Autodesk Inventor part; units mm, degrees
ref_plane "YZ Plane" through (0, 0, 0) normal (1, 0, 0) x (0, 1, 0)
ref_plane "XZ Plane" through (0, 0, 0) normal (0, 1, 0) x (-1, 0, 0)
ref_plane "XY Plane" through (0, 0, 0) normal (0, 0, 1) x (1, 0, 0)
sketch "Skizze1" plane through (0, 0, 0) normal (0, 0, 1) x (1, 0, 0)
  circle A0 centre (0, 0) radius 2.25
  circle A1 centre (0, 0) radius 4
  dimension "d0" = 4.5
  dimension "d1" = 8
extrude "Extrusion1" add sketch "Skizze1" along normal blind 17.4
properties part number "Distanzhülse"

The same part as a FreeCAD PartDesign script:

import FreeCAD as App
import Part
import Sketcher

V = App.Vector
Q = App.Units.Quantity

doc = App.newDocument("Part")
body = doc.addObject("PartDesign::Body", "Body")

# Sketch on XY plane
sketch1 = body.newObject("Sketcher::SketchObject", "Sketch")
sketch1.AttachmentSupport = (doc.getObject("XY_Plane"), [""])
sketch1.MapMode = "FlatFace"
sketch1.addGeometry([
    Part.Circle(V(0, 0, 0), V(0, 0, 1), 4),
    Part.Circle(V(0, 0, 0), V(0, 0, 1), 2.25),
], False)
sketch1.addConstraint([
    Sketcher.Constraint("Coincident", 0, 3, -1, 1),
    Sketcher.Constraint("Coincident", 1, 3, -1, 1),
    Sketcher.Constraint("Diameter", 0, Q("8 mm")),
    Sketcher.Constraint("Diameter", 1, Q("4.5 mm")),
])
pad1 = body.newObject("PartDesign::Pad", "Pad")
pad1.Profile = sketch1
pad1.Length = 17.4

doc.recompute()
